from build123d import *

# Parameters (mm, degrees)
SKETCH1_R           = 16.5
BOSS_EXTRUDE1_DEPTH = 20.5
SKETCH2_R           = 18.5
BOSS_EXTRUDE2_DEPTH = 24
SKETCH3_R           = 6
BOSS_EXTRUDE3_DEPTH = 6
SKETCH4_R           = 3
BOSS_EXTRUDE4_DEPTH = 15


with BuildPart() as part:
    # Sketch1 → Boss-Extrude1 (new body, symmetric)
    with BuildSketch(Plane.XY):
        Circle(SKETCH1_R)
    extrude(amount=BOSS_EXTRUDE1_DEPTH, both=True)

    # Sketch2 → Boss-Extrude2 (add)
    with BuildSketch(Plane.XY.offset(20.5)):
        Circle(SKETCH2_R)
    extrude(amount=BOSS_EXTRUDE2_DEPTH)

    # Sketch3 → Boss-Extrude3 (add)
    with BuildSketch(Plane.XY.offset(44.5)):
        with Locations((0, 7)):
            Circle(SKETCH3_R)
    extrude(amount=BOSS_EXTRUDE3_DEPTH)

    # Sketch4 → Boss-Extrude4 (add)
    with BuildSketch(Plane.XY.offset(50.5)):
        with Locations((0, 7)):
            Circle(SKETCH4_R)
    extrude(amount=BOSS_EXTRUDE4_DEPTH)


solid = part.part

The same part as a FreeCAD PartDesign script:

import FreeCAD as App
import Part
import Sketcher
Q = App.Units.Quantity

doc = App.newDocument("Part")
body = doc.addObject("PartDesign::Body", "Body")

# Sketch on XY plane
sketch1 = body.newObject("Sketcher::SketchObject", "Sketch")
sketch1.AttachmentSupport = (doc.getObject("XY_Plane"), [""])
sketch1.MapMode = "FlatFace"
sketch1.addGeometry(Part.Circle(App.Vector(0, 0, 0), App.Vector(0, 0, 1), 16), False)
sketch1.addConstraint(Sketcher.Constraint("Coincident", 0, 3, -1, 1))
sketch1.addConstraint(Sketcher.Constraint("Diameter", 0, Q("33 mm")))
pad1 = body.newObject("PartDesign::Pad", "Pad")
pad1.Profile = sketch1
pad1.Length = 41
pad1.Midplane = True

# Sketch on XY plane
sketch2 = body.newObject("Sketcher::SketchObject", "Sketch001")
sketch2.AttachmentSupport = (doc.getObject("XY_Plane"), [""])
sketch2.MapMode = "FlatFace"
sketch2.AttachmentOffset = App.Placement(App.Vector(0, 0, 20.5), App.Rotation())
sketch2.addGeometry(Part.Circle(App.Vector(0, 0, 0), App.Vector(0, 0, 1), 18), False)
sketch2.addConstraint(Sketcher.Constraint("Coincident", 0, 3, -1, 1))
sketch2.addConstraint(Sketcher.Constraint("Diameter", 0, Q("37 mm")))
pad2 = body.newObject("PartDesign::Pad", "Pad001")
pad2.Profile = sketch2
pad2.Length = 24

# Sketch on XY plane
sketch3 = body.newObject("Sketcher::SketchObject", "Sketch002")
sketch3.AttachmentSupport = (doc.getObject("XY_Plane"), [""])
sketch3.MapMode = "FlatFace"
sketch3.AttachmentOffset = App.Placement(App.Vector(0, 0, 44.5), App.Rotation())
sketch3.addGeometry(Part.Circle(App.Vector(0, 7, 0), App.Vector(0, 0, 1), 6), False)
sketch3.addConstraint(Sketcher.Constraint("PointOnObject", 0, 3, -2))
sketch3.addConstraint(Sketcher.Constraint("Diameter", 0, Q("12 mm")))
sketch3.addConstraint(Sketcher.Constraint("DistanceY", -1, 1, 0, 3, Q("7 mm")))
pad3 = body.newObject("PartDesign::Pad", "Pad002")
pad3.Profile = sketch3
pad3.Length = 6

# Sketch on XY plane
sketch4 = body.newObject("Sketcher::SketchObject", "Sketch003")
sketch4.AttachmentSupport = (doc.getObject("XY_Plane"), [""])
sketch4.MapMode = "FlatFace"
sketch4.AttachmentOffset = App.Placement(App.Vector(0, 0, 50.5), App.Rotation())
sketch4.addGeometry(Part.Circle(App.Vector(0, 7, 0), App.Vector(0, 0, 1), 3), False)
sketch4.addConstraint(Sketcher.Constraint("PointOnObject", 0, 3, -2))
sketch4.addConstraint(Sketcher.Constraint("Diameter", 0, Q("6 mm")))
sketch4.addConstraint(Sketcher.Constraint("DistanceY", -1, 1, 0, 3, Q("7 mm")))
pad4 = body.newObject("PartDesign::Pad", "Pad003")
pad4.Profile = sketch4
pad4.Length = 15

doc.recompute()
